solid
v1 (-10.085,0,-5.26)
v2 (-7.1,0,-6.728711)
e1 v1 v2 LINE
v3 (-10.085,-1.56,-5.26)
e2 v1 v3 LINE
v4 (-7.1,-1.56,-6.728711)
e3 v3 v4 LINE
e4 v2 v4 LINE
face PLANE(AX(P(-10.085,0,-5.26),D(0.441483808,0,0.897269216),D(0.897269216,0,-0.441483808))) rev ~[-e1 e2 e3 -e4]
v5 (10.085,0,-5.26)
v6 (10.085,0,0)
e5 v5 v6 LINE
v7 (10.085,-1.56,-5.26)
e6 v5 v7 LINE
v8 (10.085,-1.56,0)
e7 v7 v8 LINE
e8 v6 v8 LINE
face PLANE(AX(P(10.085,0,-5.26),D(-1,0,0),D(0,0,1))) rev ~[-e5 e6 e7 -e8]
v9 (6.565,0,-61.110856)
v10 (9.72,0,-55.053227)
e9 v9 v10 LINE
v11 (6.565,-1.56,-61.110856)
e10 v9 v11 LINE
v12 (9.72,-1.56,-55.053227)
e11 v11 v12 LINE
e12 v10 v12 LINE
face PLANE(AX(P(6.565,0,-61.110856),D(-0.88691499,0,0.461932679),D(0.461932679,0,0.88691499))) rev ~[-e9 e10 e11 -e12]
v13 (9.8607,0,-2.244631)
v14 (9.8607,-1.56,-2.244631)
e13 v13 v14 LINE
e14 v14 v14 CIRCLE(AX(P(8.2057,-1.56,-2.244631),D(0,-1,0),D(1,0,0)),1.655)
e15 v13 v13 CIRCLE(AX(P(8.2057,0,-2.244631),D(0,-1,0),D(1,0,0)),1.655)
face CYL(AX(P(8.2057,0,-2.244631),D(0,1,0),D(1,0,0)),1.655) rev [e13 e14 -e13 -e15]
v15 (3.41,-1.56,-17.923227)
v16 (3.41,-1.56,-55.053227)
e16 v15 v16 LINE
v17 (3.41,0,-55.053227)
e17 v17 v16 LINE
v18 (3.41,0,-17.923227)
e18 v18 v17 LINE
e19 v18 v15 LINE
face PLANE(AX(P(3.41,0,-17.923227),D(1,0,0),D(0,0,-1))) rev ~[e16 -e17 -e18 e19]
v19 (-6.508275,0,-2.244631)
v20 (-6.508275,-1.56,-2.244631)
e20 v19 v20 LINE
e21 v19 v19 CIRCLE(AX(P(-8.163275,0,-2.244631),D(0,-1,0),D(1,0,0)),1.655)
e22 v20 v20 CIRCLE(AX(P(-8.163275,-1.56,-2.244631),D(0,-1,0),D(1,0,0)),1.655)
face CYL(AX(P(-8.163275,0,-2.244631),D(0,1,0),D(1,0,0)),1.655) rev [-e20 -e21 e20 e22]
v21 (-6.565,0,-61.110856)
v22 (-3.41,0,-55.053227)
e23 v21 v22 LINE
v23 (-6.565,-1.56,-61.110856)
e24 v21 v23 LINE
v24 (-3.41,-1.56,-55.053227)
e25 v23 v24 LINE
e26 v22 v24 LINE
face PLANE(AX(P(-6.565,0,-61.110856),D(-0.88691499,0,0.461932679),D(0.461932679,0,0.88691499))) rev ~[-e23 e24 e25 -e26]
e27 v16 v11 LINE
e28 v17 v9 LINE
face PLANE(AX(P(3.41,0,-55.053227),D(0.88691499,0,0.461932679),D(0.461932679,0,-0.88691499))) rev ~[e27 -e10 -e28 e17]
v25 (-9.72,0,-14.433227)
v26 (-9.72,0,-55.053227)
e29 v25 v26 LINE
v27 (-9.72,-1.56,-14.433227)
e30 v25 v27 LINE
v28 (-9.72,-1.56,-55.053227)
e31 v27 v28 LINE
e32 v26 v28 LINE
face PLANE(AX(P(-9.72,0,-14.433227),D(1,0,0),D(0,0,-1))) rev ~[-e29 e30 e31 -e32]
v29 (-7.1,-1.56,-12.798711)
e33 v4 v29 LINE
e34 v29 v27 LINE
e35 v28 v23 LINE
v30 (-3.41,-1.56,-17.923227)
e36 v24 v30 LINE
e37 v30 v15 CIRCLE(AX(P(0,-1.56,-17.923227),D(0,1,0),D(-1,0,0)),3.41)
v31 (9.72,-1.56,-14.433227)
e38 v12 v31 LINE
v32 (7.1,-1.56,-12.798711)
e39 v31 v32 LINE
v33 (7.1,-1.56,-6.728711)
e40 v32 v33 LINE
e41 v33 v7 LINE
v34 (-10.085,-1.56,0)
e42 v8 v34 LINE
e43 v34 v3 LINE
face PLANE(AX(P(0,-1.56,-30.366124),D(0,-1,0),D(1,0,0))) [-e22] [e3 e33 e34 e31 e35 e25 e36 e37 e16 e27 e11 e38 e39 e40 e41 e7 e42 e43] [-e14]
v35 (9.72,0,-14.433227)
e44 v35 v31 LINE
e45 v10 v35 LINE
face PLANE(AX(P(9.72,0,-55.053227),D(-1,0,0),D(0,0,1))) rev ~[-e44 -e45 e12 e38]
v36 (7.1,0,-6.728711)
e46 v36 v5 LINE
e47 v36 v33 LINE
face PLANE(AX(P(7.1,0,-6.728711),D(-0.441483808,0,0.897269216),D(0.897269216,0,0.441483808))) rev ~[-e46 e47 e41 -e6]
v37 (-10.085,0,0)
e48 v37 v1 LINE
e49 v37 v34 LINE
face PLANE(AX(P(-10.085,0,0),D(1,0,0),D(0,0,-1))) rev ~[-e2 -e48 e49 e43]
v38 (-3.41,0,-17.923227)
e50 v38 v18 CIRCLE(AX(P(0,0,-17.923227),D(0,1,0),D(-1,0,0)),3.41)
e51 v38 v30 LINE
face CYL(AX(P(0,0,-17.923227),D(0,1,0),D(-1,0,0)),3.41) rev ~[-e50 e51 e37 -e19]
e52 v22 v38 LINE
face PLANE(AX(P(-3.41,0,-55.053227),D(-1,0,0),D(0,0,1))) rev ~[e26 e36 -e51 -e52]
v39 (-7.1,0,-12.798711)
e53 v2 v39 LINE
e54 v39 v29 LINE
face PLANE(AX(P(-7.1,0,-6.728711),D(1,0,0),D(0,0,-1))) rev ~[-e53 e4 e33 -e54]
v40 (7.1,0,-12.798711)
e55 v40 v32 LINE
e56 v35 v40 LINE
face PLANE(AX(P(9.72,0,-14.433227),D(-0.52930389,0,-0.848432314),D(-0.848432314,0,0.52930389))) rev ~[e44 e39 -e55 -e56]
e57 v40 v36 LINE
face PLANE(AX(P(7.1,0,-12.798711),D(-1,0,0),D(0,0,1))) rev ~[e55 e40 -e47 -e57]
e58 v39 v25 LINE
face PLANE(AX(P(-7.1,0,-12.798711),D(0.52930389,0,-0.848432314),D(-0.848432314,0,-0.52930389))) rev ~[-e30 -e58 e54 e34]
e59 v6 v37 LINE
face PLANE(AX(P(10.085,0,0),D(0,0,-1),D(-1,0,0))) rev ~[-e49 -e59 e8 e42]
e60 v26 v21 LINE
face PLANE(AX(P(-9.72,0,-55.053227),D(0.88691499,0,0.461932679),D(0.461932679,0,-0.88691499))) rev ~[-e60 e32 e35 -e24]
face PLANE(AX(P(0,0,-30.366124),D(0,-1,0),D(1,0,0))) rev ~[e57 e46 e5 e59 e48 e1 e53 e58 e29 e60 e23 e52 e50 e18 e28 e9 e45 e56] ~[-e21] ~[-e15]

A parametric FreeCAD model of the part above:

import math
import FreeCAD as App
import Part
import Sketcher

doc = App.newDocument("Part")
body = doc.addObject("PartDesign::Body", "Body")

# Sketch on XZ plane
sketch1 = body.newObject("Sketcher::SketchObject", "Sketch")
sketch1.AttachmentSupport = (doc.getObject("XZ_Plane"), [""])
sketch1.MapMode = "FlatFace"
sketch1.addGeometry([
    Part.LineSegment(App.Vector(10.1, 0, 0), App.Vector(-10.1, 0, 0)),  # 0
    Part.LineSegment(App.Vector(-10.1, 0, 0), App.Vector(-10.1, -5.3, 0)),  # 1
    Part.LineSegment(App.Vector(-10.1, -5.3, 0), App.Vector(-7.1, -6.7, 0)),  # 2
    Part.LineSegment(App.Vector(-7.1, -6.7, 0), App.Vector(-7.1, -12.8, 0)),  # 3
    Part.LineSegment(App.Vector(-7.1, -12.8, 0), App.Vector(-9.7, -14.4, 0)),  # 4
    Part.LineSegment(App.Vector(-9.7, -14.4, 0), App.Vector(-9.7, -55.1, 0)),  # 5
    Part.LineSegment(App.Vector(-9.7, -55.1, 0), App.Vector(-6.6, -61.1, 0)),  # 6
    Part.LineSegment(App.Vector(-6.6, -61.1, 0), App.Vector(-3.4, -55.1, 0)),  # 7
    Part.LineSegment(App.Vector(-3.4, -55.1, 0), App.Vector(-3.4, -17.9, 0)),  # 8
    Part.ArcOfCircle(Part.Circle(App.Vector(0, -17.9, 0), App.Vector(0, 0, 1), 3.4), math.radians(0), math.radians(180)),  # 9
    Part.LineSegment(App.Vector(3.4, -17.9, 0), App.Vector(3.4, -55.1, 0)),  # 10
    Part.LineSegment(App.Vector(3.4, -55.1, 0), App.Vector(6.6, -61.1, 0)),  # 11
    Part.LineSegment(App.Vector(6.6, -61.1, 0), App.Vector(9.7, -55.1, 0)),  # 12
    Part.LineSegment(App.Vector(9.7, -55.1, 0), App.Vector(9.7, -14.4, 0)),  # 13
    Part.LineSegment(App.Vector(9.7, -14.4, 0), App.Vector(7.1, -12.8, 0)),  # 14
    Part.LineSegment(App.Vector(7.1, -12.8, 0), App.Vector(7.1, -6.7, 0)),  # 15
    Part.LineSegment(App.Vector(7.1, -6.7, 0), App.Vector(10.1, -5.3, 0)),  # 16
    Part.LineSegment(App.Vector(10.1, -5.3, 0), App.Vector(10.1, 0, 0)),  # 17
    Part.Circle(App.Vector(-8.2, -2.2, 0), App.Vector(0, 0, 1), 1.7),  # 18
    Part.Circle(App.Vector(8.2, -2.2, 0), App.Vector(0, 0, 1), 1.7),  # 19
], False)
sketch1.addConstraint([
    Sketcher.Constraint("Coincident", 0, 2, 1, 1),
    Sketcher.Constraint("Coincident", 1, 2, 2, 1),
    Sketcher.Constraint("Coincident", 2, 2, 3, 1),
    Sketcher.Constraint("Coincident", 3, 2, 4, 1),
    Sketcher.Constraint("Coincident", 4, 2, 5, 1),
    Sketcher.Constraint("Coincident", 5, 2, 6, 1),
    Sketcher.Constraint("Coincident", 6, 2, 7, 1),
    Sketcher.Constraint("Coincident", 7, 2, 8, 1),
    Sketcher.Constraint("Tangent", 8, 2, 9, 2),
    Sketcher.Constraint("Tangent", 9, 1, 10, 1),
    Sketcher.Constraint("Coincident", 10, 2, 11, 1),
    Sketcher.Constraint("Coincident", 11, 2, 12, 1),
    Sketcher.Constraint("Coincident", 12, 2, 13, 1),
    Sketcher.Constraint("Coincident", 13, 2, 14, 1),
    Sketcher.Constraint("Coincident", 14, 2, 15, 1),
    Sketcher.Constraint("Coincident", 15, 2, 16, 1),
    Sketcher.Constraint("Coincident", 16, 2, 17, 1),
    Sketcher.Constraint("Coincident", 17, 2, 0, 1),
    Sketcher.Constraint("Horizontal", 0),
    Sketcher.Constraint("Vertical", 1),
    Sketcher.Constraint("Vertical", 3),
    Sketcher.Constraint("Vertical", 5),
    Sketcher.Constraint("Vertical", 8),
    Sketcher.Constraint("Vertical", 10),
    Sketcher.Constraint("Vertical", 13),
    Sketcher.Constraint("Vertical", 15),
    Sketcher.Constraint("Vertical", 17),
    Sketcher.Constraint("Equal", 18, 19),
    Sketcher.Constraint("Symmetric", 0, 2, 17, 2, -1, 1),
    Sketcher.Constraint("Symmetric", 7, 2, 10, 2, -2),
    Sketcher.Constraint("Symmetric", 6, 2, 11, 2, -2),
    Sketcher.Constraint("Symmetric", 5, 2, 12, 2, -2),
    Sketcher.Constraint("Symmetric", 3, 2, 14, 2, -2),
    Sketcher.Constraint("Parallel", 6, 11),
    Sketcher.Constraint("Horizontal", 18, 3, 19, 3),
    Sketcher.Constraint("Horizontal", 5, 2, 7, 2),
    Sketcher.Constraint("Horizontal", 4, 2, 13, 2),
    Sketcher.Constraint("Horizontal", 2, 2, 15, 2),
    Sketcher.Constraint("Horizontal", 1, 2, 16, 2),
    Sketcher.Constraint("Diameter", 18, 3.31),
    Sketcher.Constraint("Radius", 9, 3.41),
    Sketcher.Constraint("DistanceX", 0, 2, 0, 1, 20.17),
    Sketcher.Constraint("DistanceY", 1, 2, 1, 1, 5.26),
    Sketcher.Constraint("DistanceY", 3, 2, 3, 1, 6.07),
    Sketcher.Constraint("DistanceY", 5, 2, 5, 1, 40.62),
    Sketcher.Constraint("DistanceY", 8, 1, 8, 2, 37.13),
    Sketcher.Constraint("DistanceX", 2, 2, -1, 1, 7.1),
    Sketcher.Constraint("Distance", 6, 6.83),
    Sketcher.Constraint("DistanceX", 4, 2, -1, 1, 9.72),
    Sketcher.Constraint("DistanceX", -1, 1, 19, 3, 8.2057),
    Sketcher.Constraint("Distance", 2, 3.326761),
    Sketcher.Constraint("Distance", 4, 3.088048),
    Sketcher.Constraint("DistanceY", 18, 3, -1, 1, 2.244631),
    Sketcher.Constraint("DistanceX", 18, 3, -1, 1, 8.163275),
])
pad1 = body.newObject("PartDesign::Pad", "Pad")
pad1.Profile = sketch1
pad1.Length = 1.56

doc.recompute()
